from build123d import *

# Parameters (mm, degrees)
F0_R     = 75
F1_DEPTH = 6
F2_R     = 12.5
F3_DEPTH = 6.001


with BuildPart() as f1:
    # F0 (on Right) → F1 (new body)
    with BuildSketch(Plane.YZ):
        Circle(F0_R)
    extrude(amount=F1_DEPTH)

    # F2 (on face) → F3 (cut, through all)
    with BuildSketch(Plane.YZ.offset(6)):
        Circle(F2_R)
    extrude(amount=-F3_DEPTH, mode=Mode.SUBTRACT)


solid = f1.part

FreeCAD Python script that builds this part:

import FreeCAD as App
import Part
import Sketcher

V = App.Vector

doc = App.newDocument("Part")
body = doc.addObject("PartDesign::Body", "Body")

sketch1 = doc.addObject("Sketcher::SketchObject", "Sketch")
body.addObject(sketch1)
sketch1.AttachmentSupport = (doc.YZ_Plane, [""])
sketch1.MapMode = "FlatFace"
sketch1.addGeometry(Part.Circle(V(0, 0, 0), V(0, 0, 1), 75), False)
sketch1.addConstraint(Sketcher.Constraint("Coincident", 0, 3, -1, 1))
sketch1.addConstraint(Sketcher.Constraint("Diameter", 0, 150.0))
pad1 = doc.addObject("PartDesign::Pad", "Pad")
body.addObject(pad1)
pad1.Profile = sketch1
pad1.Length = 6

sketch2 = doc.addObject("Sketcher::SketchObject", "Sketch001")
body.addObject(sketch2)
sketch2.AttachmentSupport = (doc.YZ_Plane, [""])
sketch2.MapMode = "FlatFace"
sketch2.AttachmentOffset = App.Placement(V(0, 0, 6), App.Rotation())
sketch2.addGeometry(Part.Circle(V(0, 0, 0), V(0, 0, 1), 12), False)
sketch2.addConstraint(Sketcher.Constraint("Coincident", 0, 3, -1, 1))
sketch2.addConstraint(Sketcher.Constraint("Diameter", 0, 25.0))
pocket1 = doc.addObject("PartDesign::Pocket", "Pocket")
body.addObject(pocket1)
pocket1.Profile = sketch2
pocket1.Type = "ThroughAll"

doc.recompute()
